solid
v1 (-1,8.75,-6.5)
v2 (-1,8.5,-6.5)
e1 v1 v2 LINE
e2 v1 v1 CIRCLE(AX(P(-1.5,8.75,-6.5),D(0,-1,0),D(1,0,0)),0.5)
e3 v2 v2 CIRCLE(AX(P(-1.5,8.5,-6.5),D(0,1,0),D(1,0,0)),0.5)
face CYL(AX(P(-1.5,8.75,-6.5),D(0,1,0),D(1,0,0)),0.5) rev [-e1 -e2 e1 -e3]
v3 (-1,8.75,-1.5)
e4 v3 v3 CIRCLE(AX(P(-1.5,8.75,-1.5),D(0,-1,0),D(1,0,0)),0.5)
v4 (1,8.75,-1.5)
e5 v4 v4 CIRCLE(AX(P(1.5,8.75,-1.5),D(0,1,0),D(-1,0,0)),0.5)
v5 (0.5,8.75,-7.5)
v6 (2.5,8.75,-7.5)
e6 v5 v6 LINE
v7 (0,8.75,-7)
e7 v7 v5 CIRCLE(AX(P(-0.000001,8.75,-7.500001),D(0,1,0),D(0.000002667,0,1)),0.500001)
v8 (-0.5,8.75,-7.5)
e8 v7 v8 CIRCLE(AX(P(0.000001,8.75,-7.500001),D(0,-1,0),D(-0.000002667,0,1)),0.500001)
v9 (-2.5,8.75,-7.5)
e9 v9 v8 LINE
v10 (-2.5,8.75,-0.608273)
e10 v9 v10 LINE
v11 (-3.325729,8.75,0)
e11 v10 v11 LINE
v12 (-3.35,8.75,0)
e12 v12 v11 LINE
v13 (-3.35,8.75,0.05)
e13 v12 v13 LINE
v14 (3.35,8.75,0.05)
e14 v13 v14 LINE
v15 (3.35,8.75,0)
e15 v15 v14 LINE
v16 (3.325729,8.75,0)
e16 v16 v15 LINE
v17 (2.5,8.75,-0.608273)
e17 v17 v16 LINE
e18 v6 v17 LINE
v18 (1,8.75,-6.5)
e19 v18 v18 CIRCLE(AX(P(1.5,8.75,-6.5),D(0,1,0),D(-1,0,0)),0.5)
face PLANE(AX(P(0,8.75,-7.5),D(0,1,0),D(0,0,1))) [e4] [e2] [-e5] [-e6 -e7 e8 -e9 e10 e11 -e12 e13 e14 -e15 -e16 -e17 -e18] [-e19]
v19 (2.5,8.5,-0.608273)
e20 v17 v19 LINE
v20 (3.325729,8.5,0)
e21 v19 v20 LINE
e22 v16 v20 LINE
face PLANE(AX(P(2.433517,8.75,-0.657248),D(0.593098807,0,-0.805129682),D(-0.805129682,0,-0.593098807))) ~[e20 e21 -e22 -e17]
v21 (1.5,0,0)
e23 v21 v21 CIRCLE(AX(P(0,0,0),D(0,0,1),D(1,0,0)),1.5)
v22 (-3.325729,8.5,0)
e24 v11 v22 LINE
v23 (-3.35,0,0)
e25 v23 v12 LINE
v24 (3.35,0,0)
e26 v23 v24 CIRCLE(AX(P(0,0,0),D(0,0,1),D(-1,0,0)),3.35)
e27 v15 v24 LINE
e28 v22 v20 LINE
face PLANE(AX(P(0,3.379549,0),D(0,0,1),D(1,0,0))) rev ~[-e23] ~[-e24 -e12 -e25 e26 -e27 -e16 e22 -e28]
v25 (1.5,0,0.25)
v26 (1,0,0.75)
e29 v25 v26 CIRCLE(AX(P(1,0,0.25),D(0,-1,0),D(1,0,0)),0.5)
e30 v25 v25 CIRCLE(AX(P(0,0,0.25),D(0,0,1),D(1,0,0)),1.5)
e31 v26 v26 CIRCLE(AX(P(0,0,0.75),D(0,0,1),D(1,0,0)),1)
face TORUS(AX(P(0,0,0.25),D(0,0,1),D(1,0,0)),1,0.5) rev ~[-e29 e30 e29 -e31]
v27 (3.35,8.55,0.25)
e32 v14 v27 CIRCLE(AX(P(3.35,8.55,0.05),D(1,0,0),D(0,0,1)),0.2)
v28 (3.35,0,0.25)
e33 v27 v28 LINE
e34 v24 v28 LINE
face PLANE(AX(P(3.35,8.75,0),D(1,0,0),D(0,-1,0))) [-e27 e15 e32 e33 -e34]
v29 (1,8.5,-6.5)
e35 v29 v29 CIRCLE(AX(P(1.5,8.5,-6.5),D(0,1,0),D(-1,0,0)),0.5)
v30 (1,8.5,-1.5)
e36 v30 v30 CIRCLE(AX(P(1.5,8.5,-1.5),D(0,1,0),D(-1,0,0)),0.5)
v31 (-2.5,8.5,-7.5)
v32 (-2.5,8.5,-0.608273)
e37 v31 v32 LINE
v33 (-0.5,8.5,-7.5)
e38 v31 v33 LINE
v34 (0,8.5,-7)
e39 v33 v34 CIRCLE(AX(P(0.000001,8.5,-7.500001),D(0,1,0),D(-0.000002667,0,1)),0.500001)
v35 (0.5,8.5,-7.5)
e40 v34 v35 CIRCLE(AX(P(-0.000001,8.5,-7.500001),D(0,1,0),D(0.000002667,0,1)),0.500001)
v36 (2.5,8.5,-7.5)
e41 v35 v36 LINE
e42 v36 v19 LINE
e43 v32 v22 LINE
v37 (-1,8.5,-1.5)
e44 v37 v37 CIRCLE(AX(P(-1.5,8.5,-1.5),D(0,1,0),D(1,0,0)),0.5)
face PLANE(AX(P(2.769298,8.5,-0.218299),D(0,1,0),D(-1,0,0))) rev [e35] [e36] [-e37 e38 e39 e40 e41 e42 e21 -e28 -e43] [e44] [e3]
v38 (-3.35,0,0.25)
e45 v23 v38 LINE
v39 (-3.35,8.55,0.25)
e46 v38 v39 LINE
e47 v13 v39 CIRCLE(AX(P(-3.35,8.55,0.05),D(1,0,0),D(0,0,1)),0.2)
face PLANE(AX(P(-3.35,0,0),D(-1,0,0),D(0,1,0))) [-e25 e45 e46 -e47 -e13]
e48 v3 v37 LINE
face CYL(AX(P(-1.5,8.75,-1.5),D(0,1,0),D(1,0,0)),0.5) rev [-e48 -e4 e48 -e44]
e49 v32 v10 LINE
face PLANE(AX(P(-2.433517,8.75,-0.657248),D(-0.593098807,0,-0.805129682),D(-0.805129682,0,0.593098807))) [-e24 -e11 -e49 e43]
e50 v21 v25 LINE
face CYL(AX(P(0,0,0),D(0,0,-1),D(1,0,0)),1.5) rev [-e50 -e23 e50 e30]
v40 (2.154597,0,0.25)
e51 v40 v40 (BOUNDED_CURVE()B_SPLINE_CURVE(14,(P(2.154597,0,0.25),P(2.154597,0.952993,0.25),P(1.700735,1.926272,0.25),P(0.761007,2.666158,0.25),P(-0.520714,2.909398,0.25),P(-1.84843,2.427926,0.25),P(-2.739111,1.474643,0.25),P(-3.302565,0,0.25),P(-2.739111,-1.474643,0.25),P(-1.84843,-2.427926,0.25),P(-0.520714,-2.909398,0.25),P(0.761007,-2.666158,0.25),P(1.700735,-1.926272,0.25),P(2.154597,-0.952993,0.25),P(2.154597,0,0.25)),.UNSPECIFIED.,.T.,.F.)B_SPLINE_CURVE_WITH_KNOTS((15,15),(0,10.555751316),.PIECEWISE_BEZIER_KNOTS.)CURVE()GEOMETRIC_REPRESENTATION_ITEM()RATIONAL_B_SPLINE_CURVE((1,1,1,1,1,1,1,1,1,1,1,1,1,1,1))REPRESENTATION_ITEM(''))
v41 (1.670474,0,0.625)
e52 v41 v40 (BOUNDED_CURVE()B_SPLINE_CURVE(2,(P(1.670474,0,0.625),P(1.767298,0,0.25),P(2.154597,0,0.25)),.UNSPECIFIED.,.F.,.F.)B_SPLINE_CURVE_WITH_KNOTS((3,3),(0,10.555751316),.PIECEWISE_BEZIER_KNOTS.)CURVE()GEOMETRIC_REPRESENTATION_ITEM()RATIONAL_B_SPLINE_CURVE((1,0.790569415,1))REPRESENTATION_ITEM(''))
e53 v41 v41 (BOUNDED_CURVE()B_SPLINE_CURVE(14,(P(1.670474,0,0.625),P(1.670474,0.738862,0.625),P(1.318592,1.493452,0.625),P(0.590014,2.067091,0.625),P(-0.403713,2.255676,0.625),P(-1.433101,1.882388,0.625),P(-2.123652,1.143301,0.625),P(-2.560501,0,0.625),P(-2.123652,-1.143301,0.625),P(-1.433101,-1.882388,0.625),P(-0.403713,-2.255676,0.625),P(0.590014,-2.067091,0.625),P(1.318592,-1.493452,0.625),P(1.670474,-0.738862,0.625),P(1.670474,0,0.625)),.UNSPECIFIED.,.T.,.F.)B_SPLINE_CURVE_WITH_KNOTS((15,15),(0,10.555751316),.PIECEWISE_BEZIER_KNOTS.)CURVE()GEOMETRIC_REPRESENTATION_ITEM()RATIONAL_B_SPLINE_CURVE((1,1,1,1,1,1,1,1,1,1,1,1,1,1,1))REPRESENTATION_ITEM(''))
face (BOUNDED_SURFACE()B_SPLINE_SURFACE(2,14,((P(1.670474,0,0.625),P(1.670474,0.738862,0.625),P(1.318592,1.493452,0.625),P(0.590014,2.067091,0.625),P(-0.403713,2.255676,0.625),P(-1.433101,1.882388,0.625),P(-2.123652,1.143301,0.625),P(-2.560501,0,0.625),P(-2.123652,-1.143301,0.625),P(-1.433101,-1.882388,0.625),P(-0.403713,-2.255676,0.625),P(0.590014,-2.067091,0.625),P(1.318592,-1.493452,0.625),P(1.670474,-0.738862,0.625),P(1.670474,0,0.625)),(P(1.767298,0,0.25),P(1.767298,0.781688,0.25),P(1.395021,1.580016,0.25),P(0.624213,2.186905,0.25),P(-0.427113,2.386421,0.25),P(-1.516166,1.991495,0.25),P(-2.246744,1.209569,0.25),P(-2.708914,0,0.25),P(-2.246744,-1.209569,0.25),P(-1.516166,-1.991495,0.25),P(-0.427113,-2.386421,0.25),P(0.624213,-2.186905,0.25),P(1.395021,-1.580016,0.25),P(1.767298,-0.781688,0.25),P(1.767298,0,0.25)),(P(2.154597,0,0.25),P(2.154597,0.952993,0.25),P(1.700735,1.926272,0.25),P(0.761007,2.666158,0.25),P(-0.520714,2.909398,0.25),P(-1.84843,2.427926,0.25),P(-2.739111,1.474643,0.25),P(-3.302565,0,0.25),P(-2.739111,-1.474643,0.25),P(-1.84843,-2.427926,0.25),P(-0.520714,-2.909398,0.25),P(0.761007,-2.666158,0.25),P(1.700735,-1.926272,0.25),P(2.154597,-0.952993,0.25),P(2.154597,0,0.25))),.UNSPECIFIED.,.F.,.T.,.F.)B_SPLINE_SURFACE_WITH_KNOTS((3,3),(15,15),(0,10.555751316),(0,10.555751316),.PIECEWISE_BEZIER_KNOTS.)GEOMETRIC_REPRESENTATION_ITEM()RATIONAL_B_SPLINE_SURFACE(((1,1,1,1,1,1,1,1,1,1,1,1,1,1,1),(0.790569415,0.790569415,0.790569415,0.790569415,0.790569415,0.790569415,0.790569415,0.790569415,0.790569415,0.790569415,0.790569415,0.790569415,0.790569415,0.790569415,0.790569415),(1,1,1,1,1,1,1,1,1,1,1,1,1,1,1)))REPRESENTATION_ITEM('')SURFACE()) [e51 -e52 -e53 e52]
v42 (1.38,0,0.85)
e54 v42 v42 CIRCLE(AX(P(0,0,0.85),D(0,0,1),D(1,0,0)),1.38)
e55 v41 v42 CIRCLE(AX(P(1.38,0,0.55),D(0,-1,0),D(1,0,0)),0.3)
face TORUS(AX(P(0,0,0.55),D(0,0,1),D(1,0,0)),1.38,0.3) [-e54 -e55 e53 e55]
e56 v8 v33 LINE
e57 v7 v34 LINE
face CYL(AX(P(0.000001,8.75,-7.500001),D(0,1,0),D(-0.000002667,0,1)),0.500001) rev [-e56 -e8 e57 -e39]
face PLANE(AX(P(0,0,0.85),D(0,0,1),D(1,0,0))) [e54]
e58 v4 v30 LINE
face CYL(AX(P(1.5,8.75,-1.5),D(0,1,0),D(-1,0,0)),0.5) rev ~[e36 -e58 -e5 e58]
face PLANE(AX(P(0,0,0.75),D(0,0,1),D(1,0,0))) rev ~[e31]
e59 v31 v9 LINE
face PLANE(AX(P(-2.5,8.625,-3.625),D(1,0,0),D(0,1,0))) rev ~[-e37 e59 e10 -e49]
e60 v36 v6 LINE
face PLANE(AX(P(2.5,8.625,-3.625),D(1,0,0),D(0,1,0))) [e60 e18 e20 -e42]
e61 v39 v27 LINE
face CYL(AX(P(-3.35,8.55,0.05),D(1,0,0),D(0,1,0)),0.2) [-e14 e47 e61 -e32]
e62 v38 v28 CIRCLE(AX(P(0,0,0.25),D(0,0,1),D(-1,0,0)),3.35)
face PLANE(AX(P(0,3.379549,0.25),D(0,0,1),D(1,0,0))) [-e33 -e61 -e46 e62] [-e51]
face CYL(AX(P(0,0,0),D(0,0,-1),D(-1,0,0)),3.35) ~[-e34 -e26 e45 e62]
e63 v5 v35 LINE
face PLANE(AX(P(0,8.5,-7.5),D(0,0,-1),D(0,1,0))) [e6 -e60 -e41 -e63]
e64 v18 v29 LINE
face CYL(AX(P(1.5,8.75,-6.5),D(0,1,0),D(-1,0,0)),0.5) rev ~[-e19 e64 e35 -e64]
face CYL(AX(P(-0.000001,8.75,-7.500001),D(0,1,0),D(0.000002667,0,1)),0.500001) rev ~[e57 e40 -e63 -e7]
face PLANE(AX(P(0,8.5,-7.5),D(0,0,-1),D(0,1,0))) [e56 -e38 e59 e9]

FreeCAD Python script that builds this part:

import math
import FreeCAD as App
import Part
import Sketcher
Q = App.Units.Quantity


def edges_at(feature, points):
    """Names of the edges that pass closest to the given points."""
    edges = feature.Shape.Edges
    near = lambda p: min(range(len(edges)), key=lambda i: edges[i].distToShape(Part.Vertex(*p))[0])
    return sorted({f"Edge{near(p) + 1}" for p in points})


def add_polygon(sketch, points):
    """Adds a closed chain of lines whose ends are joined by coincident constraints."""
    first, n = sketch.GeometryCount, len(points)
    for a, b in zip(points, points[1:] + points[:1]):
        sketch.addGeometry(Part.LineSegment(App.Vector(*a, 0), App.Vector(*b, 0)), False)
    for i in range(n):
        sketch.addConstraint(Sketcher.Constraint("Coincident", first + i, 2, first + (i + 1) % n, 1))

doc = App.newDocument("Part")
body = doc.addObject("PartDesign::Body", "Body")

sketch1 = doc.addObject("Sketcher::SketchObject", "Sketch")
body.addObject(sketch1)
sketch1.AttachmentSupport = (doc.XY_Plane, [""])
sketch1.MapMode = "FlatFace"
sketch1.addGeometry([
    Part.ArcOfCircle(Part.Circle(App.Vector(0, 0, 0), App.Vector(0, 0, 1), 3.4), math.radians(180), math.radians(360)),
    Part.LineSegment(App.Vector(3.4, 0, 0), App.Vector(3.4, 8.8, 0)),
    Part.LineSegment(App.Vector(3.4, 8.8, 0), App.Vector(-3.4, 8.8, 0)),
    Part.LineSegment(App.Vector(-3.4, 8.8, 0), App.Vector(-3.4, 0, 0)),
], False)
sketch1.addConstraint([
    Sketcher.Constraint("Tangent", 0, 2, 1, 1),
    Sketcher.Constraint("Coincident", 1, 2, 2, 1),
    Sketcher.Constraint("Coincident", 2, 2, 3, 1),
    Sketcher.Constraint("Tangent", 3, 2, 0, 1),
    Sketcher.Constraint("Vertical", 1),
    Sketcher.Constraint("Horizontal", 2),
    Sketcher.Constraint("Vertical", 3),
    Sketcher.Constraint("Coincident", 0, 3, -1, 1),
    Sketcher.Constraint("Radius", 0, Q("3.35 mm")),
    Sketcher.Constraint("DistanceY", 1, 1, 1, 2, Q("8.75 mm")),
])
pad1 = doc.addObject("PartDesign::Pad", "Pad")
body.addObject(pad1)
pad1.Profile = sketch1
pad1.Length = 0.25

sketch2 = doc.addObject("Sketcher::SketchObject", "Sketch001")
body.addObject(sketch2)
sketch2.AttachmentSupport = (doc.XY_Plane, [""])
sketch2.MapMode = "FlatFace"
sketch2.addGeometry(Part.Circle(App.Vector(0, 0, 0), App.Vector(0, 0, 1), 1.7), False)
sketch2.addConstraint([
    Sketcher.Constraint("Coincident", 0, 3, -1, 1),
    Sketcher.Constraint("Diameter", 0, Q("3.35 mm")),
])
pocket1 = doc.addObject("PartDesign::Pocket", "Pocket")
body.addObject(pocket1)
pocket1.Profile = sketch2
pocket1.Length = 5
pocket1.Reversed = True

sketch3 = doc.addObject("Sketcher::SketchObject", "Sketch002")
body.addObject(sketch3)
sketch3.AttachmentSupport = (doc.XY_Plane, [""])
sketch3.MapMode = "FlatFace"
sketch3.AttachmentOffset = App.Placement(App.Vector(0, 0, 0.85), App.Rotation())
sketch3.addGeometry(Part.Circle(App.Vector(0, 0, 0), App.Vector(0, 0, 1), 1.7), False)
sketch3.addConstraint([
    Sketcher.Constraint("Coincident", 0, 3, -1, 1),
    Sketcher.Constraint("Diameter", 0, Q("3.36 mm")),
])
pad2 = doc.addObject("PartDesign::Pad", "Pad001")
body.addObject(pad2)
pad2.Profile = sketch3
pad2.Length = 0.85
pad2.Reversed = True

sketch4 = doc.addObject("Sketcher::SketchObject", "Sketch003")
body.addObject(sketch4)
sketch4.AttachmentSupport = (doc.XY_Plane, [""])
sketch4.MapMode = "FlatFace"
sketch4.addGeometry(Part.Circle(App.Vector(0, 0, 0), App.Vector(0, 0, 1), 1.5), False)
sketch4.addConstraint([
    Sketcher.Constraint("Coincident", 0, 3, -1, 1),
    Sketcher.Constraint("Diameter", 0, Q("3 mm")),
])
pocket2 = doc.addObject("PartDesign::Pocket", "Pocket001")
body.addObject(pocket2)
pocket2.Profile = sketch4
pocket2.Length = 0.75
pocket2.Reversed = True
doc.recompute()

fillet = doc.addObject("PartDesign::Fillet", "Fillet")
body.addObject(fillet)
fillet.Base = (pocket2, edges_at(pocket2, [(-1.68, 0, 0.85)]))
fillet.Radius = 0.3
doc.recompute()

fillet2 = doc.addObject("PartDesign::Fillet", "Fillet001")
body.addObject(fillet2)
fillet2.Base = (fillet, edges_at(fillet, [(-1.68, 0, 0.25)]))
fillet2.Radius = 0.5
doc.recompute()

fillet3 = doc.addObject("PartDesign::Fillet", "Fillet002")
body.addObject(fillet3)
fillet3.Base = (fillet2, edges_at(fillet2, [(-1.5, 0, 0.75)]))
fillet3.Radius = 0.5

sketch5 = doc.addObject("Sketcher::SketchObject", "Sketch004")
body.addObject(sketch5)
sketch5.AttachmentSupport = (doc.YZ_Plane, [""])
sketch5.MapMode = "FlatFace"
add_polygon(sketch5, [(8.5, 0.25), (8.5, -7.5), (8.75, -7.5), (8.75, 0.25)])
sketch5.addConstraint([
    Sketcher.Constraint("Vertical", 0),
    Sketcher.Constraint("Horizontal", 1),
    Sketcher.Constraint("Vertical", 2),
    Sketcher.Constraint("Horizontal", 3),
    Sketcher.Constraint("DistanceX", 1, 1, 1, 2, Q("0.25 mm")),
    Sketcher.Constraint("DistanceY", 0, 2, 0, 1, Q("7.75 mm")),
    Sketcher.Constraint("DistanceX", -1, 1, 0, 2, Q("8.5 mm")),
    Sketcher.Constraint("DistanceY", 0, 2, -1, 1, Q("7.5 mm")),
])
pad3 = doc.addObject("PartDesign::Pad", "Pad002")
body.addObject(pad3)
pad3.Profile = sketch5
pad3.Length = 5
pad3.Midplane = True

sketch6 = doc.addObject("Sketcher::SketchObject", "Sketch005")
body.addObject(sketch6)
sketch6.AttachmentSupport = (doc.XZ_Plane, [""])
sketch6.MapMode = "FlatFace"
sketch6.AttachmentOffset = App.Placement(App.Vector(0, 0, -8.75), App.Rotation())
sketch6.addGeometry([
    Part.Circle(App.Vector(-1.5, -1.5, 0), App.Vector(0, 0, 1), 0.5),
    Part.Circle(App.Vector(-1.5, -6.5, 0), App.Vector(0, 0, 1), 0.5),
    Part.ArcOfCircle(Part.Circle(App.Vector(0, -7.5, 0), App.Vector(0, 0, 1), 0.5), math.radians(90), math.radians(180)),
    Part.LineSegment(App.Vector(-0.5, -7.5, 0), App.Vector(0, -7.5, 0)),
    Part.LineSegment(App.Vector(0, -7.5, 0), App.Vector(0, -7, 0)),
], False)
sketch6.addConstraint([
    Sketcher.Constraint("Coincident", 2, 2, 3, 1),
    Sketcher.Constraint("Coincident", 3, 2, 4, 1),
    Sketcher.Constraint("Coincident", 4, 2, 2, 1),
    Sketcher.Constraint("Horizontal", 3),
    Sketcher.Constraint("Vertical", 4),
    Sketcher.Constraint("Coincident", 3, 2, 2, 3),
    Sketcher.Constraint("Equal", 0, 1),
    Sketcher.Constraint("Equal", 1, 2),
    Sketcher.Constraint("PointOnObject", 2, 3, -2),
    Sketcher.Constraint("Vertical", 0, 3, 1, 3),
    Sketcher.Constraint("Diameter", 0, Q("1 mm")),
    Sketcher.Constraint("DistanceY", 4, 2, -1, 1, Q("7 mm")),
    Sketcher.Constraint("DistanceY", 1, 3, 0, 3, Q("5 mm")),
    Sketcher.Constraint("DistanceY", 2, 3, 1, 3, Q("1.000001 mm")),
    Sketcher.Constraint("DistanceX", 1, 3, 2, 2, Q("1 mm")),
])
pocket3 = doc.addObject("PartDesign::Pocket", "Pocket002")
body.addObject(pocket3)
pocket3.Profile = sketch6
pocket3.Length = 5
pocket3.Reversed = True
doc.recompute()

mirrored = doc.addObject("PartDesign::Mirrored", "Mirrored")
body.addObject(mirrored)
mirrored.Originals = [pocket3]
mirrored.MirrorPlane = (doc.YZ_Plane, [""])
body.Tip = mirrored
doc.recompute()

fillet4 = doc.addObject("PartDesign::Fillet", "Fillet003")
body.addObject(fillet4)
fillet4.Base = (mirrored, edges_at(mirrored, [(0, 8.75, 0.25)]))
fillet4.Radius = 0.2

sketch7 = doc.addObject("Sketcher::SketchObject", "Sketch006")
body.addObject(sketch7)
sketch7.AttachmentSupport = (doc.XZ_Plane, [""])
sketch7.MapMode = "FlatFace"
sketch7.AttachmentOffset = App.Placement(App.Vector(0, 0, -8.75), App.Rotation())
add_polygon(sketch7, [(-3.3, 0), (-2.4, -0.7), (-2.4, 0)])
sketch7.addConstraint([
    Sketcher.Constraint("Vertical", 1),
    Sketcher.Constraint("Horizontal", 2),
    Sketcher.Constraint("PointOnObject", 1, 2, -1),
    Sketcher.Constraint("DistanceX", 2, 2, 2, 1, Q("0.892212 mm")),
    Sketcher.Constraint("DistanceY", 1, 1, 1, 2, Q("0.657248 mm")),
    Sketcher.Constraint("DistanceX", 2, 2, -1, 1, Q("3.325729 mm")),
])
pad4 = doc.addObject("PartDesign::Pad", "Pad003")
body.addObject(pad4)
pad4.Profile = sketch7
pad4.Length = 0.25
doc.recompute()

mirrored2 = doc.addObject("PartDesign::Mirrored", "Mirrored001")
body.addObject(mirrored2)
mirrored2.Originals = [pad4]
mirrored2.MirrorPlane = (doc.YZ_Plane, [""])
body.Tip = mirrored2

doc.recompute()
